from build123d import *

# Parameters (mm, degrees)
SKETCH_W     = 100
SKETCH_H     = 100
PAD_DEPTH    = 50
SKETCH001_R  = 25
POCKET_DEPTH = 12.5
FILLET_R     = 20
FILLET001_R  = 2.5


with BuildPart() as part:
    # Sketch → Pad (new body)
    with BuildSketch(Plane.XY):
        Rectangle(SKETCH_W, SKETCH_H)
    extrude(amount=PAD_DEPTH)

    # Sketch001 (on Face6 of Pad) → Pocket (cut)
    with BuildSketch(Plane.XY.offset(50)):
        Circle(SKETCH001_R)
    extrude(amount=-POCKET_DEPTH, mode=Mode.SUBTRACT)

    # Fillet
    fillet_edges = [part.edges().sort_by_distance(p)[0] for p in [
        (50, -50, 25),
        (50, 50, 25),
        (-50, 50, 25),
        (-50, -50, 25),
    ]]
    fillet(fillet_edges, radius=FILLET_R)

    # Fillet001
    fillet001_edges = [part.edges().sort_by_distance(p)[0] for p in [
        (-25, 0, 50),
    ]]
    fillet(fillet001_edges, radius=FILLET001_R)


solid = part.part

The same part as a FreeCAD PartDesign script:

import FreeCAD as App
import Part
import Sketcher
from FreeCAD import Vector
Q = App.Units.Quantity


def edges_at(feature, points):
    """Names of the edges that pass closest to the given points."""
    edges = feature.Shape.Edges
    near = lambda p: min(range(len(edges)), key=lambda i: edges[i].distToShape(Part.Vertex(*p))[0])
    return sorted({f"Edge{near(p) + 1}" for p in points})


def add_polygon(sketch, points):
    """Adds a closed chain of lines whose ends are joined by coincident constraints."""
    first, n = sketch.GeometryCount, len(points)
    for a, b in zip(points, points[1:] + points[:1]):
        sketch.addGeometry(Part.LineSegment(App.Vector(*a, 0), App.Vector(*b, 0)), False)
    for i in range(n):
        sketch.addConstraint(Sketcher.Constraint("Coincident", first + i, 2, first + (i + 1) % n, 1))

doc = App.newDocument("Part")
params = doc.addObject("Spreadsheet::Sheet", "Params")
for row, (alias, value) in enumerate([
    ("sketch1_width", "100 mm"),
    ("pad1_length", "50 mm"),
    ("sketch2_diameter", "50 mm"),
    ("pocket1_length", "12.5 mm"),
    ("fillet_radius", "20 mm"),
    ("fillet2_radius", "2.5 mm"),
], start=1):
    params.set(f"A{row}", alias)
    params.set(f"B{row}", "=" + value)
    params.setAlias(f"B{row}", alias)

body = doc.addObject("PartDesign::Body", "Body")

# Sketch on XY plane
sketch1 = doc.addObject("Sketcher::SketchObject", "Sketch")
body.addObject(sketch1)
sketch1.AttachmentSupport = (doc.XY_Plane, [""])
sketch1.MapMode = "FlatFace"
add_polygon(sketch1, [(-50, 50), (-50, -50), (50, -50), (50, 50)])  # lines 0-3
sketch1.addConstraint([
    Sketcher.Constraint("Vertical", 0),
    Sketcher.Constraint("Horizontal", 1),
    Sketcher.Constraint("Vertical", 2),
    Sketcher.Constraint("Horizontal", 3),
    Sketcher.Constraint("Symmetric", 0, 2, 2, 2, -1, 1),
    Sketcher.Constraint("Equal", 3, 0),
    Sketcher.Constraint("DistanceX", 1, 1, 1, 2, Q("100 mm")),
])
sketch1.setExpression("Constraints[10]", "Params.sketch1_width")
pad1 = doc.addObject("PartDesign::Pad", "Pad")
body.addObject(pad1)
pad1.Profile = sketch1
pad1.setExpression("Length", "Params.pad1_length")

# Sketch on XY plane
sketch2 = doc.addObject("Sketcher::SketchObject", "Sketch001")
body.addObject(sketch2)
sketch2.AttachmentSupport = (doc.XY_Plane, [""])
sketch2.MapMode = "FlatFace"
sketch2.AttachmentOffset = App.Placement(Vector(0, 0, 50), App.Rotation())
sketch2.addGeometry(Part.Circle(Vector(0, 0, 0), Vector(0, 0, 1), 25), False)
sketch2.addConstraint([
    Sketcher.Constraint("Coincident", 0, 3, -1, 1),
    Sketcher.Constraint("Diameter", 0, Q("50 mm")),
])
sketch2.setExpression("Constraints[1]", "Params.sketch2_diameter")
pocket1 = doc.addObject("PartDesign::Pocket", "Pocket")
body.addObject(pocket1)
pocket1.Profile = sketch2
pocket1.setExpression("Length", "Params.pocket1_length")
doc.recompute()

fillet = doc.addObject("PartDesign::Fillet", "Fillet")
body.addObject(fillet)
fillet.Base = (pocket1, edges_at(pocket1, [
    (50, -50, 25),
    (50, 50, 25),
    (-50, 50, 25),
    (-50, -50, 25),
]))
fillet.setExpression("Radius", "Params.fillet_radius")
doc.recompute()

fillet2 = doc.addObject("PartDesign::Fillet", "Fillet001")
body.addObject(fillet2)
fillet2.Base = (fillet, edges_at(fillet, [(-25, 0, 50)]))
fillet2.setExpression("Radius", "Params.fillet2_radius")

doc.recompute()
